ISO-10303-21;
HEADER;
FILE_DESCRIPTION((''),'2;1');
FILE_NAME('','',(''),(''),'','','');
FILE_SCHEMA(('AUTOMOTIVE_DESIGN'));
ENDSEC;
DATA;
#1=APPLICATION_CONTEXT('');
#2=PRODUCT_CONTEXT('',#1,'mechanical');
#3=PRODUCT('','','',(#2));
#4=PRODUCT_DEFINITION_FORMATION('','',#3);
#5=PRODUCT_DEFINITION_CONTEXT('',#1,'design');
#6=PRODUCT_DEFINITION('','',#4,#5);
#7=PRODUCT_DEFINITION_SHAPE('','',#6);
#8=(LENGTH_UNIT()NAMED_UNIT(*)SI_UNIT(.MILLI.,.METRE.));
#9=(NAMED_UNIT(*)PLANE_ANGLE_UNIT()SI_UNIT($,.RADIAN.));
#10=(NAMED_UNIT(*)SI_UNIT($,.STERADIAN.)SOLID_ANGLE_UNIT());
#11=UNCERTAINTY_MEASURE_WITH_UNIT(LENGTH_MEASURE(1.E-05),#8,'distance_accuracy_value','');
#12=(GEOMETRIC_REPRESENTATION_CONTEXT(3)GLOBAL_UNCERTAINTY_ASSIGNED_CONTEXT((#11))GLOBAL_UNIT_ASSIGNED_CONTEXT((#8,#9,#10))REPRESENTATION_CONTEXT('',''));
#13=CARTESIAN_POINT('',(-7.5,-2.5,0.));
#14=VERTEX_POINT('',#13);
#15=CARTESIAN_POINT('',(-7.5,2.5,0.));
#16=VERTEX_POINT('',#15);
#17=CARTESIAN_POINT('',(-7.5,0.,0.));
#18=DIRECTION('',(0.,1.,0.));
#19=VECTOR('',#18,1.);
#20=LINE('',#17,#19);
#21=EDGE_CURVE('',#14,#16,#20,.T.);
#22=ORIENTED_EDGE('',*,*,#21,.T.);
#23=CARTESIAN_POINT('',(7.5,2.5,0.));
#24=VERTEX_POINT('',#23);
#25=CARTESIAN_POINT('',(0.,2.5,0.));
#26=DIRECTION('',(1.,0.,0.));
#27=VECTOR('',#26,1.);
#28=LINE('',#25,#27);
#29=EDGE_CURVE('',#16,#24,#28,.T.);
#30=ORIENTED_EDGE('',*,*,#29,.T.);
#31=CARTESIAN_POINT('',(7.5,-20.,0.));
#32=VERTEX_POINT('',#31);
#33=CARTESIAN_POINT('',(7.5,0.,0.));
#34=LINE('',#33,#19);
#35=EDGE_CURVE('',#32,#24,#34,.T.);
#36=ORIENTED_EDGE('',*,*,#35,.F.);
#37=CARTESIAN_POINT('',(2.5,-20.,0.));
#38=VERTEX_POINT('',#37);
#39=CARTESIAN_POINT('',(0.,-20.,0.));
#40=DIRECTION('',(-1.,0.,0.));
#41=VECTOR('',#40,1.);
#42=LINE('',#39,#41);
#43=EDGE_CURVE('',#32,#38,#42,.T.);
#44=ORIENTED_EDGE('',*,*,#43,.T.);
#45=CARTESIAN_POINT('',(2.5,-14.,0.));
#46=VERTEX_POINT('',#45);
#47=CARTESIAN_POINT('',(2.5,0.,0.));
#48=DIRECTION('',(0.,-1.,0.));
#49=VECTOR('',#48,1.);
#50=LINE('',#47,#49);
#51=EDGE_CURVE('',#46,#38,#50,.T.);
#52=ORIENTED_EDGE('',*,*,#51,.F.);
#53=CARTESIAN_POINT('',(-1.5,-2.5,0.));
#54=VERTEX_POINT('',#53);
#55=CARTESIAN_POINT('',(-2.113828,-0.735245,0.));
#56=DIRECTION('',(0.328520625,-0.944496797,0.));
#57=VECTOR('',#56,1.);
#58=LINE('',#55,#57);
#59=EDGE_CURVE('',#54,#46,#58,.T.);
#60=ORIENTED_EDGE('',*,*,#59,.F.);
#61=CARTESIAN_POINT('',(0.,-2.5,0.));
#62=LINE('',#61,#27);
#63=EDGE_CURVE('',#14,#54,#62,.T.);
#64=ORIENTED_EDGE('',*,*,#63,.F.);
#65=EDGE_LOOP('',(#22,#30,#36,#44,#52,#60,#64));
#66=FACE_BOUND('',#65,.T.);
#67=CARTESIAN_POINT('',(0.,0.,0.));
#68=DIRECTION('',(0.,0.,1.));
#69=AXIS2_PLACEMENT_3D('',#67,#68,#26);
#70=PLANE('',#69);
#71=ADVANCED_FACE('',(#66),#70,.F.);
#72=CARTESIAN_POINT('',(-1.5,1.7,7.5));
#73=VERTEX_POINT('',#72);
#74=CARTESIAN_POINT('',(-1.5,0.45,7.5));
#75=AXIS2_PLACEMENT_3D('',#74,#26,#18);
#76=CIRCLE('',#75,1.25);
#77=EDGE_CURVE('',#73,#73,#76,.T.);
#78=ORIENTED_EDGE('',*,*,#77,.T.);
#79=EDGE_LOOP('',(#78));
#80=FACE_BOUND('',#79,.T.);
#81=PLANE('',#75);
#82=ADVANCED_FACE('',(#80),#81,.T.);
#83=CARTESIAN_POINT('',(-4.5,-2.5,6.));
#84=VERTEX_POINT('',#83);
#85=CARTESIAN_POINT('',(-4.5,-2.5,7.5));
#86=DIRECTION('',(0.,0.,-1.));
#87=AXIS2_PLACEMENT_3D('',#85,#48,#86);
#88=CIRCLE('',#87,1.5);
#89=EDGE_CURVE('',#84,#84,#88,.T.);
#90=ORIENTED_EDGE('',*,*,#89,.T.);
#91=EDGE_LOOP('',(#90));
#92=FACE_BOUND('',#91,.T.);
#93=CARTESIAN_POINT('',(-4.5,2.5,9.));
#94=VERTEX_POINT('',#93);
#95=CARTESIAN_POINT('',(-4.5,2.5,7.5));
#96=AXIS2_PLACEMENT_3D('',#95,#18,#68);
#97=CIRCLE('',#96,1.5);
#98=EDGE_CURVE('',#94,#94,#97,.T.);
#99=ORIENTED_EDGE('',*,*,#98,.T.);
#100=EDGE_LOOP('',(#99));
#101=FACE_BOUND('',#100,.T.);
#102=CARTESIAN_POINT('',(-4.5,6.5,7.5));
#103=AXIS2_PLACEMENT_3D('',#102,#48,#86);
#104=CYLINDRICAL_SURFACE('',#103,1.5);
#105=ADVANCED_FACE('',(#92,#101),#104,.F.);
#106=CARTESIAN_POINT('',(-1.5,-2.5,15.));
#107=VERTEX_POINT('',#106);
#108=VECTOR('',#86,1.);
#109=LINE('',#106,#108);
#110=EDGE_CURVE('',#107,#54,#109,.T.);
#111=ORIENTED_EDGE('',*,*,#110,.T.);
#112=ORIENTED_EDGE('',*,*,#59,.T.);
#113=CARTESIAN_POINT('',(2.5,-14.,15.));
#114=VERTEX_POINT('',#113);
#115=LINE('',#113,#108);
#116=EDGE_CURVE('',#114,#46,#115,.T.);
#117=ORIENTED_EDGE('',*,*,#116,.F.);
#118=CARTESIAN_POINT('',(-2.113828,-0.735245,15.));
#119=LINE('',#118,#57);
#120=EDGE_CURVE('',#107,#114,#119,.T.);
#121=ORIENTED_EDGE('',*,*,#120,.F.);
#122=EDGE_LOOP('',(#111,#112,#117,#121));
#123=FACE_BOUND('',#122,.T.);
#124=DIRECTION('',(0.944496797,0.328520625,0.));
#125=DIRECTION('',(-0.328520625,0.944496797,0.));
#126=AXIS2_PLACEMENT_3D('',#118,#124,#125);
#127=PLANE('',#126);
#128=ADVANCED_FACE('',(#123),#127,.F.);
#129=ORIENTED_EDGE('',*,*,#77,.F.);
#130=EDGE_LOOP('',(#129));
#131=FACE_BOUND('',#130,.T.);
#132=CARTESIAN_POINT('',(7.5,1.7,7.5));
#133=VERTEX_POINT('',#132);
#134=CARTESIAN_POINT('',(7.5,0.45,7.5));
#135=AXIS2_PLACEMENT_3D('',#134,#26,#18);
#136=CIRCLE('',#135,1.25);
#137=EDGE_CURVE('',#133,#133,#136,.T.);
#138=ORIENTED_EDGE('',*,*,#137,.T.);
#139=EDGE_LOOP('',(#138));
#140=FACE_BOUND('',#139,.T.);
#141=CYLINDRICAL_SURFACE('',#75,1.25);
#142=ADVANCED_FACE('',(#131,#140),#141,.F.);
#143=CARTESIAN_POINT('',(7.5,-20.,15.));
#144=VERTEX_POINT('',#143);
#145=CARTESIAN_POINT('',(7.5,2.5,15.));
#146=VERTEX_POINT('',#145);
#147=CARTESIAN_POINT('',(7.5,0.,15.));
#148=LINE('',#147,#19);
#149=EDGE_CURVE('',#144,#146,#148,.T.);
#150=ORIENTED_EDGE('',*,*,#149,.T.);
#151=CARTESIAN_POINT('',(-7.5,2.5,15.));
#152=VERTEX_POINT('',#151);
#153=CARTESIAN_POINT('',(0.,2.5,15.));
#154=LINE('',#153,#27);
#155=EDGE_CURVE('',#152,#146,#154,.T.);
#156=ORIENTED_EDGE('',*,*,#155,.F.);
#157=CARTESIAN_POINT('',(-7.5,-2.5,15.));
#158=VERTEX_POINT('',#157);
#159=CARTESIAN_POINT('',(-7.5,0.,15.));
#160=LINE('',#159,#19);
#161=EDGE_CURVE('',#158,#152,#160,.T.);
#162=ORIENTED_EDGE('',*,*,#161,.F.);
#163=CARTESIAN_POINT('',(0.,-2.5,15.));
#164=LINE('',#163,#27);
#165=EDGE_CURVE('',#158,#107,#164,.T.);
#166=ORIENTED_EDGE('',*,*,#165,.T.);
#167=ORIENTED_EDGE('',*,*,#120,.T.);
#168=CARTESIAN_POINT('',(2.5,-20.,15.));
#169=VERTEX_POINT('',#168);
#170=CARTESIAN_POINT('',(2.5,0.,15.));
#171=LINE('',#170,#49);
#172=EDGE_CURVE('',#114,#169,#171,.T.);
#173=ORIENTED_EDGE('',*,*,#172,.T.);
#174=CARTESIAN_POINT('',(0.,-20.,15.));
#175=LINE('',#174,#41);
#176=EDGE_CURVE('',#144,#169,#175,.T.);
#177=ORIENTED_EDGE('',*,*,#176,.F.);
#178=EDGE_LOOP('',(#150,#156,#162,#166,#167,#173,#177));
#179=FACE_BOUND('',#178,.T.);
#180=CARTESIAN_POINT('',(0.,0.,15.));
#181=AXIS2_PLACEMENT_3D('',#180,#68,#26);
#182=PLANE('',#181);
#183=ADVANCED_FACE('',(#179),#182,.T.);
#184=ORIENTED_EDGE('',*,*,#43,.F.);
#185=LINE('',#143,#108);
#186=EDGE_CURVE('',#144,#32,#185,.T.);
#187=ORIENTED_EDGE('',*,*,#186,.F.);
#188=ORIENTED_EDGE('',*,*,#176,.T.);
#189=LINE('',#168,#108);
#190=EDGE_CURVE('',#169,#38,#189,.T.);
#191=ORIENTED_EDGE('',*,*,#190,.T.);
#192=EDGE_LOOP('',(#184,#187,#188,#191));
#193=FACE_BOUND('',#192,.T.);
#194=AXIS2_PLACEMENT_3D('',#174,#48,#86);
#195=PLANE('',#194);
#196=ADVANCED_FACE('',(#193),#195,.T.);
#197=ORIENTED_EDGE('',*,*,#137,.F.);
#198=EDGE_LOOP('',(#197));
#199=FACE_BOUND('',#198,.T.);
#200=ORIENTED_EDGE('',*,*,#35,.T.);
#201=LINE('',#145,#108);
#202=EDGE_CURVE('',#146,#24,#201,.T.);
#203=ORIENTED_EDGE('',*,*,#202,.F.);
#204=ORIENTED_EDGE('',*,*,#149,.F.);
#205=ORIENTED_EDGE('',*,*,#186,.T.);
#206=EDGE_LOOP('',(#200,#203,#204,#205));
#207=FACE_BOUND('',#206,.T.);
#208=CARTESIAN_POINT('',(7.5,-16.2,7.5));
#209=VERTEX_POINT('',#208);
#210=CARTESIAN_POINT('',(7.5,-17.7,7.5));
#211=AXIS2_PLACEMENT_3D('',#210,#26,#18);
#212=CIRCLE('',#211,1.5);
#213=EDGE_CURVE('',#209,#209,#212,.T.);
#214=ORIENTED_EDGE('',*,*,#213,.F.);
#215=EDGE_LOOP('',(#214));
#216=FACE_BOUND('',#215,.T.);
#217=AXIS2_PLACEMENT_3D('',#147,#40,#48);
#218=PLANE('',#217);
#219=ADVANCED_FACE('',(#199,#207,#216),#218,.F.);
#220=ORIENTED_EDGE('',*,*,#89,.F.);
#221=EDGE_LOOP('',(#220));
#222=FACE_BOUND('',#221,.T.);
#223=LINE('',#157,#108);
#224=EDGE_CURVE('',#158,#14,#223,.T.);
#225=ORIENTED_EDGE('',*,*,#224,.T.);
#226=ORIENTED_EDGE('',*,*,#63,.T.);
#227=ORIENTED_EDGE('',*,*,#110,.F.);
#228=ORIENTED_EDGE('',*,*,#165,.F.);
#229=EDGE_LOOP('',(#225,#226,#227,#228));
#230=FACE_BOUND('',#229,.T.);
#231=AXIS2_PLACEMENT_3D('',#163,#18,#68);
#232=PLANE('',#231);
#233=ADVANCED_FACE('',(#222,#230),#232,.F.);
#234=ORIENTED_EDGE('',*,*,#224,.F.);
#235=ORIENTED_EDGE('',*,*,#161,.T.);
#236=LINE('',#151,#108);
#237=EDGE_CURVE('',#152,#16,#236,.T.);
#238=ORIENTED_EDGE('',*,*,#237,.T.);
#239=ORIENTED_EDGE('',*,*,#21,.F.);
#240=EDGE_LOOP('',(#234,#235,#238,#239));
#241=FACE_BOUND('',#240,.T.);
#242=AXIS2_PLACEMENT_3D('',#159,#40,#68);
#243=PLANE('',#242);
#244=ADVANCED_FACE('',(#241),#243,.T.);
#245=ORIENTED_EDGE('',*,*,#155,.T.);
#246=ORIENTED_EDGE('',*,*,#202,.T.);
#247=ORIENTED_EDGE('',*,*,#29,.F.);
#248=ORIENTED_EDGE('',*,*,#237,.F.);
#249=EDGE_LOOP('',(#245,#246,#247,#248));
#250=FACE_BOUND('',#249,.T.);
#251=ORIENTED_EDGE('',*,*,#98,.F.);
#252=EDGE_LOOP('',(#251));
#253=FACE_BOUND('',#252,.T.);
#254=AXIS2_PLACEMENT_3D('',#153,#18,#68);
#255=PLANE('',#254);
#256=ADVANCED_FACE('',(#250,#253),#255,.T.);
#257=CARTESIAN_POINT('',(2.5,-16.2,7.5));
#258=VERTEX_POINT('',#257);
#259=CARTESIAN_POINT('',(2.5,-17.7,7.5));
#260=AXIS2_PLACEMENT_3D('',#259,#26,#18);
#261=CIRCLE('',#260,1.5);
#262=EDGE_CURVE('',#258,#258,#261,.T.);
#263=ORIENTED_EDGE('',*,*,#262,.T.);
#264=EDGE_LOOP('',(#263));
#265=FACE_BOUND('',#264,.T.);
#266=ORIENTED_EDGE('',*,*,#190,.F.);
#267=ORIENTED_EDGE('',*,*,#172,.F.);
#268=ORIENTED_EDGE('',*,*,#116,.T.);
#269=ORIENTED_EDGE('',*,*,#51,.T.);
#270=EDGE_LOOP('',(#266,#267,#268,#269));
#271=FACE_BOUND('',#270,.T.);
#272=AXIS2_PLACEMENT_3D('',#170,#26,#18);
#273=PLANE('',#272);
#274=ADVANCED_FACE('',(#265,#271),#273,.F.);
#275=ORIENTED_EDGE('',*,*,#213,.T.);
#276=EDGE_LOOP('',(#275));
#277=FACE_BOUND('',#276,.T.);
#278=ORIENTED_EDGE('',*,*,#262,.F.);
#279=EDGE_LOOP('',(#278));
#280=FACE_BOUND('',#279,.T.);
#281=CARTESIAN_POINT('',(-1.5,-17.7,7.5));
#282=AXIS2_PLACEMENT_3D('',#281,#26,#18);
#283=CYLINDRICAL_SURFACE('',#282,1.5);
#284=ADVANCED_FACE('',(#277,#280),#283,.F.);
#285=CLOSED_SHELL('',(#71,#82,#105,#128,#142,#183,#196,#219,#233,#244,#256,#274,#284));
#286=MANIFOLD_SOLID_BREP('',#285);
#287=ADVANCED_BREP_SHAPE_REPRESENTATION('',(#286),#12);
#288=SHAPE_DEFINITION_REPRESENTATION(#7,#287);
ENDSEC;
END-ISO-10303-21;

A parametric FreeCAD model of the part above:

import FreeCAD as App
import Part
import Sketcher

doc = App.newDocument("Part")
body = doc.addObject("PartDesign::Body", "Body")

sketch1 = body.newObject("Sketcher::SketchObject", "Sketch")
sketch1.AttachmentSupport = (doc.getObject("XY_Plane"), [""])
sketch1.MapMode = "FlatFace"
sketch1.addGeometry(Part.LineSegment(App.Vector(-8, -2, 0), App.Vector(-2, -2, 0)), False)
sketch1.addGeometry(Part.LineSegment(App.Vector(-2, -2, 0), App.Vector(2, -14, 0)), False)
sketch1.addGeometry(Part.LineSegment(App.Vector(2, -14, 0), App.Vector(2, -20, 0)), False)
sketch1.addGeometry(Part.LineSegment(App.Vector(2, -20, 0), App.Vector(8, -20, 0)), False)
sketch1.addGeometry(Part.LineSegment(App.Vector(8, -20, 0), App.Vector(8, 2, 0)), False)
sketch1.addGeometry(Part.LineSegment(App.Vector(8, 2, 0), App.Vector(-8, 2, 0)), False)
sketch1.addGeometry(Part.LineSegment(App.Vector(-8, 2, 0), App.Vector(-8, -2, 0)), False)
sketch1.addConstraint(Sketcher.Constraint("Coincident", 0, 2, 1, 1))
sketch1.addConstraint(Sketcher.Constraint("Coincident", 1, 2, 2, 1))
sketch1.addConstraint(Sketcher.Constraint("Coincident", 2, 2, 3, 1))
sketch1.addConstraint(Sketcher.Constraint("Coincident", 3, 2, 4, 1))
sketch1.addConstraint(Sketcher.Constraint("Coincident", 4, 2, 5, 1))
sketch1.addConstraint(Sketcher.Constraint("Coincident", 5, 2, 6, 1))
sketch1.addConstraint(Sketcher.Constraint("Coincident", 6, 2, 0, 1))
sketch1.addConstraint(Sketcher.Constraint("Horizontal", 0))
sketch1.addConstraint(Sketcher.Constraint("Vertical", 2))
sketch1.addConstraint(Sketcher.Constraint("Horizontal", 3))
sketch1.addConstraint(Sketcher.Constraint("Vertical", 4))
sketch1.addConstraint(Sketcher.Constraint("Horizontal", 5))
sketch1.addConstraint(Sketcher.Constraint("Vertical", 6))
sketch1.addConstraint(Sketcher.Constraint("Symmetric", 4, 2, 6, 2, -1, 1))
sketch1.addConstraint(Sketcher.Constraint("Equal", 0, 2))
sketch1.addConstraint(Sketcher.Constraint("Equal", 3, 6))
sketch1.addConstraint(Sketcher.Constraint("DistanceX", 0, 1, 0, 2, 6.0))
sketch1.addConstraint(Sketcher.Constraint("DistanceX", 3, 1, 3, 2, 5.0))
sketch1.addConstraint(Sketcher.Constraint("DistanceX", 5, 2, 5, 1, 15.0))
sketch1.addConstraint(Sketcher.Constraint("DistanceY", 4, 1, 4, 2, 22.5))
pad1 = body.newObject("PartDesign::Pad", "Pad")
pad1.Profile = sketch1
pad1.Length = 15

sketch2 = body.newObject("Sketcher::SketchObject", "Sketch001")
sketch2.AttachmentSupport = (doc.getObject("YZ_Plane"), [""])
sketch2.MapMode = "FlatFace"
sketch2.AttachmentOffset = App.Placement(App.Vector(0, 0, 7.5), App.Rotation())
sketch2.addGeometry(Part.Circle(App.Vector(0.5, 7.5, 0), App.Vector(0, 0, 1), 1.2), False)
sketch2.addGeometry(Part.Circle(App.Vector(-17.7, 7.5, 0), App.Vector(0, 0, 1), 1.5), False)
sketch2.addConstraint(Sketcher.Constraint("Horizontal", 0, 3, 1, 3))
sketch2.addConstraint(Sketcher.Constraint("Diameter", 1, 3.0))
sketch2.addConstraint(Sketcher.Constraint("Diameter", 0, 2.5))
sketch2.addConstraint(Sketcher.Constraint("DistanceY", -1, 1, 0, 3, 7.5))
sketch2.addConstraint(Sketcher.Constraint("DistanceX", 1, 3, -1, 1, 17.7))
sketch2.addConstraint(Sketcher.Constraint("DistanceX", -1, 1, 0, 3, 0.45))
pocket1 = body.newObject("PartDesign::Pocket", "Pocket")
pocket1.Profile = sketch2
pocket1.Length = 9

sketch3 = body.newObject("Sketcher::SketchObject", "Sketch002")
sketch3.AttachmentSupport = (doc.getObject("XZ_Plane"), [""])
sketch3.MapMode = "FlatFace"
sketch3.AttachmentOffset = App.Placement(App.Vector(0, 0, 2.5), App.Rotation())
sketch3.addGeometry(Part.Circle(App.Vector(-4.5, 7.5, 0), App.Vector(0, 0, 1), 1.5), False)
sketch3.addConstraint(Sketcher.Constraint("Diameter", 0, 3.0))
sketch3.addConstraint(Sketcher.Constraint("DistanceX", 0, 3, -1, 1, 4.5))
sketch3.addConstraint(Sketcher.Constraint("DistanceY", -1, 1, 0, 3, 7.5))
pocket2 = body.newObject("PartDesign::Pocket", "Pocket001")
pocket2.Profile = sketch3
pocket2.Length = 9

doc.recompute()
